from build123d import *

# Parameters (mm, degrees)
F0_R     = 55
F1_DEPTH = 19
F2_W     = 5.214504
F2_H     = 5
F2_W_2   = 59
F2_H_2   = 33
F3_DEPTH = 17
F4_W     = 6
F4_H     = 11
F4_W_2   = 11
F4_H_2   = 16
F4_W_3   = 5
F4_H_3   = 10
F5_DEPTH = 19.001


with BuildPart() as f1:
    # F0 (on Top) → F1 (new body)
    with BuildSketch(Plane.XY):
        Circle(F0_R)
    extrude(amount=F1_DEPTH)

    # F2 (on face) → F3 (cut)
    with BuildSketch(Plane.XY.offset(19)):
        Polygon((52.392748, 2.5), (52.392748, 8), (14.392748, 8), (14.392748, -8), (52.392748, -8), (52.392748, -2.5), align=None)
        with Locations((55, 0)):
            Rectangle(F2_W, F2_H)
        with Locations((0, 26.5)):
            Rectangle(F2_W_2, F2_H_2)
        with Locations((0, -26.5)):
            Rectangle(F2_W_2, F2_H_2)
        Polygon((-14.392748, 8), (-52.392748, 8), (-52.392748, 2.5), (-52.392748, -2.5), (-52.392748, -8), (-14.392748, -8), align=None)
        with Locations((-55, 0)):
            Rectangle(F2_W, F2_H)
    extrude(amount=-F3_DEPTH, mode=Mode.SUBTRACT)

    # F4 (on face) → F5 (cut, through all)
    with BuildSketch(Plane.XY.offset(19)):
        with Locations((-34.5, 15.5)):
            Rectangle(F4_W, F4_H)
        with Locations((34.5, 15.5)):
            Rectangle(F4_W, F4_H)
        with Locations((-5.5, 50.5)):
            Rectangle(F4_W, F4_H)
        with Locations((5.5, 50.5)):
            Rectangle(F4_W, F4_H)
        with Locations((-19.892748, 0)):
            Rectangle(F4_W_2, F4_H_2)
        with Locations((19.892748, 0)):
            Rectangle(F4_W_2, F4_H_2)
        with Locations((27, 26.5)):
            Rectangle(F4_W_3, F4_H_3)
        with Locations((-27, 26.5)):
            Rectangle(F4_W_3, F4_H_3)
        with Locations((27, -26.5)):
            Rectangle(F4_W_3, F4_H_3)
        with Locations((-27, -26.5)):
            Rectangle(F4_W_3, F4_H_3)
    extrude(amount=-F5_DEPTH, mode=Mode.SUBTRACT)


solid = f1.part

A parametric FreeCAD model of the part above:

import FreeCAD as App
import Part
import Sketcher
from FreeCAD import Vector
Q = App.Units.Quantity


def add_polygon(sketch, points):
    """Adds a closed chain of lines whose ends are joined by coincident constraints."""
    first, n = sketch.GeometryCount, len(points)
    for a, b in zip(points, points[1:] + points[:1]):
        sketch.addGeometry(Part.LineSegment(App.Vector(*a, 0), App.Vector(*b, 0)), False)
    for i in range(n):
        sketch.addConstraint(Sketcher.Constraint("Coincident", first + i, 2, first + (i + 1) % n, 1))

doc = App.newDocument("Part")
body = doc.addObject("PartDesign::Body", "Body")

# Sketch on XY plane
sketch1 = body.newObject("Sketcher::SketchObject", "Sketch")
sketch1.AttachmentSupport = (doc.getObject("XY_Plane"), [""])
sketch1.MapMode = "FlatFace"
sketch1.addGeometry(Part.Circle(Vector(0, 0, 0), Vector(0, 0, 1), 55), False)
sketch1.addConstraint([
    Sketcher.Constraint("Coincident", 0, 3, -1, 1),
    Sketcher.Constraint("Diameter", 0, Q("110 mm")),
])
pad1 = body.newObject("PartDesign::Pad", "Pad")
pad1.Profile = sketch1
pad1.Length = 19

# Sketch on XY plane
sketch2 = body.newObject("Sketcher::SketchObject", "Sketch001")
sketch2.AttachmentSupport = (doc.getObject("XY_Plane"), [""])
sketch2.MapMode = "FlatFace"
sketch2.AttachmentOffset = App.Placement(Vector(0, 0, 19), App.Rotation())
add_polygon(sketch2, [(52, 8), (14, 8), (14, -8), (52, -8), (52, -2), (58, -2), (58, 2), (52, 2)])  # lines 0-7
add_polygon(sketch2, [(-30, 43), (-30, 10), (30, 10), (30, 43)])  # lines 8-11
add_polygon(sketch2, [(-30, -10), (-30, -43), (30, -43), (30, -10)])  # lines 12-15
add_polygon(sketch2, [(-14, 8), (-52, 8), (-52, 2), (-58, 2), (-58, -2), (-52, -2), (-52, -8), (-14, -8)])  # lines 16-23
sketch2.addConstraint([
    Sketcher.Constraint("Horizontal", 0),
    Sketcher.Constraint("Vertical", 1),
    Sketcher.Constraint("Horizontal", 2),
    Sketcher.Constraint("Vertical", 3),
    Sketcher.Constraint("Horizontal", 4),
    Sketcher.Constraint("Vertical", 5),
    Sketcher.Constraint("Horizontal", 6),
    Sketcher.Constraint("Vertical", 7),
    Sketcher.Constraint("Vertical", 8),
    Sketcher.Constraint("Horizontal", 9),
    Sketcher.Constraint("Vertical", 10),
    Sketcher.Constraint("Horizontal", 11),
    Sketcher.Constraint("Vertical", 12),
    Sketcher.Constraint("Horizontal", 13),
    Sketcher.Constraint("Vertical", 14),
    Sketcher.Constraint("Horizontal", 15),
    Sketcher.Constraint("Horizontal", 16),
    Sketcher.Constraint("Vertical", 17),
    Sketcher.Constraint("Horizontal", 18),
    Sketcher.Constraint("Vertical", 19),
    Sketcher.Constraint("Horizontal", 20),
    Sketcher.Constraint("Vertical", 21),
    Sketcher.Constraint("Horizontal", 22),
    Sketcher.Constraint("Vertical", 23),
    Sketcher.Constraint("Symmetric", 10, 2, 12, 2, -1, 1),
    Sketcher.Constraint("Symmetric", 8, 2, 14, 2, -1, 1),
    Sketcher.Constraint("Symmetric", 2, 2, 16, 2, -1, 1),
    Sketcher.Constraint("Symmetric", 4, 2, 18, 2, -1, 1),
    Sketcher.Constraint("Symmetric", 6, 2, 20, 2, -1, 1),
    Sketcher.Constraint("Symmetric", 0, 2, 22, 2, -1, 1),
    Sketcher.Constraint("Symmetric", 7, 2, 16, 2, -2),
    Sketcher.Constraint("Horizontal", 6, 2, 17, 2),
    Sketcher.Constraint("Vertical", 11, 2, 12, 2),
    Sketcher.Constraint("DistanceX", 0, 2, 0, 1, Q("38 mm")),
    Sketcher.Constraint("DistanceX", 9, 1, 9, 2, Q("59 mm")),
    Sketcher.Constraint("DistanceY", 1, 2, 1, 1, Q("16 mm")),
    Sketcher.Constraint("DistanceY", 5, 1, 5, 2, Q("5 mm")),
    Sketcher.Constraint("DistanceY", 8, 2, 8, 1, Q("33 mm")),
    Sketcher.Constraint("DistanceY", -1, 1, 8, 2, Q("10 mm")),
    Sketcher.Constraint("DistanceX", 4, 1, 4, 2, Q("5.214504 mm")),
    Sketcher.Constraint("DistanceX", -1, 1, 0, 2, Q("14.392748 mm")),
])
pocket1 = body.newObject("PartDesign::Pocket", "Pocket")
pocket1.Profile = sketch2
pocket1.Length = 17

# Sketch on XY plane
sketch3 = body.newObject("Sketcher::SketchObject", "Sketch002")
sketch3.AttachmentSupport = (doc.getObject("XY_Plane"), [""])
sketch3.MapMode = "FlatFace"
sketch3.AttachmentOffset = App.Placement(Vector(0, 0, 19), App.Rotation())
add_polygon(sketch3, [(-38, 21), (-38, 10), (-32, 10), (-32, 21)])  # lines 0-3
add_polygon(sketch3, [(32, 21), (32, 10), (38, 10), (38, 21)])  # lines 4-7
add_polygon(sketch3, [(-8, 56), (-8, 45), (-2, 45), (-2, 56)])  # lines 8-11
add_polygon(sketch3, [(2, 56), (2, 45), (8, 45), (8, 56)])  # lines 12-15
add_polygon(sketch3, [(-25, 8), (-25, -8), (-14, -8), (-14, 8)])  # lines 16-19
add_polygon(sketch3, [(14, 8), (14, -8), (25, -8), (25, 8)])  # lines 20-23
add_polygon(sketch3, [(24, 32), (24, 22), (30, 22), (30, 32)])  # lines 24-27
add_polygon(sketch3, [(-30, 32), (-30, 22), (-24, 22), (-24, 32)])  # lines 28-31
add_polygon(sketch3, [(24, -22), (24, -32), (30, -32), (30, -22)])  # lines 32-35
add_polygon(sketch3, [(-30, -22), (-30, -32), (-24, -32), (-24, -22)])  # lines 36-39
sketch3.addConstraint([
    Sketcher.Constraint("Vertical", 0),
    Sketcher.Constraint("Horizontal", 1),
    Sketcher.Constraint("Vertical", 2),
    Sketcher.Constraint("Horizontal", 3),
    Sketcher.Constraint("Vertical", 4),
    Sketcher.Constraint("Horizontal", 5),
    Sketcher.Constraint("Vertical", 6),
    Sketcher.Constraint("Horizontal", 7),
    Sketcher.Constraint("Vertical", 8),
    Sketcher.Constraint("Horizontal", 9),
    Sketcher.Constraint("Vertical", 10),
    Sketcher.Constraint("Horizontal", 11),
    Sketcher.Constraint("Vertical", 12),
    Sketcher.Constraint("Horizontal", 13),
    Sketcher.Constraint("Vertical", 14),
    Sketcher.Constraint("Horizontal", 15),
    Sketcher.Constraint("Vertical", 16),
    Sketcher.Constraint("Horizontal", 17),
    Sketcher.Constraint("Vertical", 18),
    Sketcher.Constraint("Horizontal", 19),
    Sketcher.Constraint("Vertical", 20),
    Sketcher.Constraint("Horizontal", 21),
    Sketcher.Constraint("Vertical", 22),
    Sketcher.Constraint("Horizontal", 23),
    Sketcher.Constraint("Vertical", 24),
    Sketcher.Constraint("Horizontal", 25),
    Sketcher.Constraint("Vertical", 26),
    Sketcher.Constraint("Horizontal", 27),
    Sketcher.Constraint("Vertical", 28),
    Sketcher.Constraint("Horizontal", 29),
    Sketcher.Constraint("Vertical", 30),
    Sketcher.Constraint("Horizontal", 31),
    Sketcher.Constraint("Vertical", 32),
    Sketcher.Constraint("Horizontal", 33),
    Sketcher.Constraint("Vertical", 34),
    Sketcher.Constraint("Horizontal", 35),
    Sketcher.Constraint("Vertical", 36),
    Sketcher.Constraint("Horizontal", 37),
    Sketcher.Constraint("Vertical", 38),
    Sketcher.Constraint("Horizontal", 39),
    Sketcher.Constraint("Symmetric", 18, 2, 20, 2, -1, 1),
    Sketcher.Constraint("Symmetric", 16, 2, 22, 2, -1, 1),
    Sketcher.Constraint("Symmetric", 30, 2, 32, 2, -1, 1),
    Sketcher.Constraint("Symmetric", 28, 2, 34, 2, -1, 1),
    Sketcher.Constraint("Symmetric", 26, 2, 36, 2, -1, 1),
    Sketcher.Constraint("Symmetric", 24, 2, 38, 2, -1, 1),
    Sketcher.Constraint("Symmetric", 1, 2, 4, 2, -2),
    Sketcher.Constraint("Symmetric", 3, 2, 6, 2, -2),
    Sketcher.Constraint("Symmetric", 9, 2, 12, 2, -2),
    Sketcher.Constraint("Symmetric", 11, 2, 14, 2, -2),
    Sketcher.Constraint("Symmetric", 25, 2, 28, 2, -2),
    Sketcher.Constraint("Symmetric", 27, 2, 30, 2, -2),
    Sketcher.Constraint("Horizontal", 17, 2, 20, 2),
    Sketcher.Constraint("Equal", 7, 9),
    Sketcher.Constraint("Equal", 23, 0),
    Sketcher.Constraint("Equal", 6, 8),
    Sketcher.Constraint("DistanceX", 1, 1, 1, 2, Q("6 mm")),
    Sketcher.Constraint("DistanceX", 17, 1, 17, 2, Q("11 mm")),
    Sketcher.Constraint("DistanceX", 25, 1, 25, 2, Q("5 mm")),
    Sketcher.Constraint("DistanceY", 16, 2, 16, 1, Q("16 mm")),
    Sketcher.Constraint("DistanceY", 24, 2, 24, 1, Q("10 mm")),
    Sketcher.Constraint("DistanceY", -1, 1, 0, 2, Q("10 mm")),
    Sketcher.Constraint("DistanceY", -1, 1, 8, 2, Q("45 mm")),
    Sketcher.Constraint("DistanceX", 1, 2, 4, 2, Q("63 mm")),
    Sketcher.Constraint("DistanceX", 2, 2, 8, 2, Q("23 mm")),
    Sketcher.Constraint("DistanceX", 24, 2, 7, 2, Q("7 mm")),
    Sketcher.Constraint("DistanceY", -1, 1, 24, 2, Q("21.5 mm")),
    Sketcher.Constraint("DistanceX", 16, 2, -1, 1, Q("25.392748 mm")),
])
pocket2 = body.newObject("PartDesign::Pocket", "Pocket001")
pocket2.Profile = sketch3
pocket2.Type = "ThroughAll"

doc.recompute()
